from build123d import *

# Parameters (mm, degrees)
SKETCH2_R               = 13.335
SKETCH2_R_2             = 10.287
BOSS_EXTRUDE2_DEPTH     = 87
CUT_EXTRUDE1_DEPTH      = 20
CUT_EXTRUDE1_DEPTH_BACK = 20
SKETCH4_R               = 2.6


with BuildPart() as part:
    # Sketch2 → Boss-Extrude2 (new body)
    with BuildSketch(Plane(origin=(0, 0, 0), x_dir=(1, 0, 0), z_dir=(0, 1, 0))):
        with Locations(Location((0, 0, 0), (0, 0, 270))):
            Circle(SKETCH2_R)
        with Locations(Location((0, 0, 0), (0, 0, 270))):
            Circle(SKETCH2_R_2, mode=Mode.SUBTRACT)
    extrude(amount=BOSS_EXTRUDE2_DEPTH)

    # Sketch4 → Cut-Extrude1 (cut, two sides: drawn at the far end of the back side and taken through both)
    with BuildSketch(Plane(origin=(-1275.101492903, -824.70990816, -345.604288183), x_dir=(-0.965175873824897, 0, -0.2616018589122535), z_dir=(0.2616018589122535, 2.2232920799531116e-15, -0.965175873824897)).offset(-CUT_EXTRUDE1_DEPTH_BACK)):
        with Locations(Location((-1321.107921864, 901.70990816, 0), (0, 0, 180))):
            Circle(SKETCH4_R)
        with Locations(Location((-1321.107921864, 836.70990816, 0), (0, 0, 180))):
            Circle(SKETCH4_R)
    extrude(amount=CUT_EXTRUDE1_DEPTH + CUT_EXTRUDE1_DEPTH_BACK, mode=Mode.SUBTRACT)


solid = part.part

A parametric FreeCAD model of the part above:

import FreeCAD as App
import Part
import Sketcher
Q = App.Units.Quantity

doc = App.newDocument("Part")
body = doc.addObject("PartDesign::Body", "Body")

# Sketch on XZ plane
sketch1 = doc.addObject("Sketcher::SketchObject", "Sketch")
body.addObject(sketch1)
sketch1.AttachmentSupport = (doc.XZ_Plane, [""])
sketch1.MapMode = "FlatFace"
sketch1.addGeometry(Part.Circle(App.Vector(0, 0, 0), App.Vector(0, 0, 1), 13.335), False)
sketch1.addGeometry(Part.Circle(App.Vector(0, 0, 0), App.Vector(0, 0, 1), 10.287), False)
sketch1.addConstraint(Sketcher.Constraint("Coincident", 0, 3, -1, 1))
sketch1.addConstraint(Sketcher.Constraint("Coincident", 1, 3, -1, 1))
sketch1.addConstraint(Sketcher.Constraint("Diameter", 0, Q("26.67 mm")))
sketch1.addConstraint(Sketcher.Constraint("Diameter", 1, Q("20.574 mm")))
pad1 = doc.addObject("PartDesign::Pad", "Pad")
body.addObject(pad1)
pad1.Profile = sketch1
pad1.Length = 87
pad1.Reversed = True

# Sketch on an angled plane
sketch2 = doc.addObject("Sketcher::SketchObject", "Sketch001")
body.addObject(sketch2)
sketch2.Placement = App.Placement(App.Vector(-1275.101493, -824.709908, -345.604288), App.Rotation(App.Vector(-0.965175874, 0, -0.261601859), App.Vector(0, 1, 0), App.Vector(0.261601859, 0, -0.965175874), "ZXY"))
sketch2.addGeometry(Part.Circle(App.Vector(-1321.107922, 901.709909, 0), App.Vector(0, 0, 1), 2.6), False)
sketch2.addGeometry(Part.Circle(App.Vector(-1321.107922, 836.709909, 0), App.Vector(0, 0, 1), 2.6), False)
sketch2.addConstraint(Sketcher.Constraint("Equal", 0, 1))
sketch2.addConstraint(Sketcher.Constraint("Vertical", 0, 3, 1, 3))
sketch2.addConstraint(Sketcher.Constraint("Diameter", 0, Q("5.2 mm")))
sketch2.addConstraint(Sketcher.Constraint("DistanceY", 1, 3, 0, 3, Q("65 mm")))
sketch2.addConstraint(Sketcher.Constraint("DistanceY", -1, 1, 0, 3, Q("901.709909 mm")))
sketch2.addConstraint(Sketcher.Constraint("DistanceX", 0, 3, -1, 1, Q("1321.107922 mm")))
pocket1 = doc.addObject("PartDesign::Pocket", "Pocket")
body.addObject(pocket1)
pocket1.Profile = sketch2
pocket1.Type = "ThroughAll"
pocket1.Midplane = True

doc.recompute()
